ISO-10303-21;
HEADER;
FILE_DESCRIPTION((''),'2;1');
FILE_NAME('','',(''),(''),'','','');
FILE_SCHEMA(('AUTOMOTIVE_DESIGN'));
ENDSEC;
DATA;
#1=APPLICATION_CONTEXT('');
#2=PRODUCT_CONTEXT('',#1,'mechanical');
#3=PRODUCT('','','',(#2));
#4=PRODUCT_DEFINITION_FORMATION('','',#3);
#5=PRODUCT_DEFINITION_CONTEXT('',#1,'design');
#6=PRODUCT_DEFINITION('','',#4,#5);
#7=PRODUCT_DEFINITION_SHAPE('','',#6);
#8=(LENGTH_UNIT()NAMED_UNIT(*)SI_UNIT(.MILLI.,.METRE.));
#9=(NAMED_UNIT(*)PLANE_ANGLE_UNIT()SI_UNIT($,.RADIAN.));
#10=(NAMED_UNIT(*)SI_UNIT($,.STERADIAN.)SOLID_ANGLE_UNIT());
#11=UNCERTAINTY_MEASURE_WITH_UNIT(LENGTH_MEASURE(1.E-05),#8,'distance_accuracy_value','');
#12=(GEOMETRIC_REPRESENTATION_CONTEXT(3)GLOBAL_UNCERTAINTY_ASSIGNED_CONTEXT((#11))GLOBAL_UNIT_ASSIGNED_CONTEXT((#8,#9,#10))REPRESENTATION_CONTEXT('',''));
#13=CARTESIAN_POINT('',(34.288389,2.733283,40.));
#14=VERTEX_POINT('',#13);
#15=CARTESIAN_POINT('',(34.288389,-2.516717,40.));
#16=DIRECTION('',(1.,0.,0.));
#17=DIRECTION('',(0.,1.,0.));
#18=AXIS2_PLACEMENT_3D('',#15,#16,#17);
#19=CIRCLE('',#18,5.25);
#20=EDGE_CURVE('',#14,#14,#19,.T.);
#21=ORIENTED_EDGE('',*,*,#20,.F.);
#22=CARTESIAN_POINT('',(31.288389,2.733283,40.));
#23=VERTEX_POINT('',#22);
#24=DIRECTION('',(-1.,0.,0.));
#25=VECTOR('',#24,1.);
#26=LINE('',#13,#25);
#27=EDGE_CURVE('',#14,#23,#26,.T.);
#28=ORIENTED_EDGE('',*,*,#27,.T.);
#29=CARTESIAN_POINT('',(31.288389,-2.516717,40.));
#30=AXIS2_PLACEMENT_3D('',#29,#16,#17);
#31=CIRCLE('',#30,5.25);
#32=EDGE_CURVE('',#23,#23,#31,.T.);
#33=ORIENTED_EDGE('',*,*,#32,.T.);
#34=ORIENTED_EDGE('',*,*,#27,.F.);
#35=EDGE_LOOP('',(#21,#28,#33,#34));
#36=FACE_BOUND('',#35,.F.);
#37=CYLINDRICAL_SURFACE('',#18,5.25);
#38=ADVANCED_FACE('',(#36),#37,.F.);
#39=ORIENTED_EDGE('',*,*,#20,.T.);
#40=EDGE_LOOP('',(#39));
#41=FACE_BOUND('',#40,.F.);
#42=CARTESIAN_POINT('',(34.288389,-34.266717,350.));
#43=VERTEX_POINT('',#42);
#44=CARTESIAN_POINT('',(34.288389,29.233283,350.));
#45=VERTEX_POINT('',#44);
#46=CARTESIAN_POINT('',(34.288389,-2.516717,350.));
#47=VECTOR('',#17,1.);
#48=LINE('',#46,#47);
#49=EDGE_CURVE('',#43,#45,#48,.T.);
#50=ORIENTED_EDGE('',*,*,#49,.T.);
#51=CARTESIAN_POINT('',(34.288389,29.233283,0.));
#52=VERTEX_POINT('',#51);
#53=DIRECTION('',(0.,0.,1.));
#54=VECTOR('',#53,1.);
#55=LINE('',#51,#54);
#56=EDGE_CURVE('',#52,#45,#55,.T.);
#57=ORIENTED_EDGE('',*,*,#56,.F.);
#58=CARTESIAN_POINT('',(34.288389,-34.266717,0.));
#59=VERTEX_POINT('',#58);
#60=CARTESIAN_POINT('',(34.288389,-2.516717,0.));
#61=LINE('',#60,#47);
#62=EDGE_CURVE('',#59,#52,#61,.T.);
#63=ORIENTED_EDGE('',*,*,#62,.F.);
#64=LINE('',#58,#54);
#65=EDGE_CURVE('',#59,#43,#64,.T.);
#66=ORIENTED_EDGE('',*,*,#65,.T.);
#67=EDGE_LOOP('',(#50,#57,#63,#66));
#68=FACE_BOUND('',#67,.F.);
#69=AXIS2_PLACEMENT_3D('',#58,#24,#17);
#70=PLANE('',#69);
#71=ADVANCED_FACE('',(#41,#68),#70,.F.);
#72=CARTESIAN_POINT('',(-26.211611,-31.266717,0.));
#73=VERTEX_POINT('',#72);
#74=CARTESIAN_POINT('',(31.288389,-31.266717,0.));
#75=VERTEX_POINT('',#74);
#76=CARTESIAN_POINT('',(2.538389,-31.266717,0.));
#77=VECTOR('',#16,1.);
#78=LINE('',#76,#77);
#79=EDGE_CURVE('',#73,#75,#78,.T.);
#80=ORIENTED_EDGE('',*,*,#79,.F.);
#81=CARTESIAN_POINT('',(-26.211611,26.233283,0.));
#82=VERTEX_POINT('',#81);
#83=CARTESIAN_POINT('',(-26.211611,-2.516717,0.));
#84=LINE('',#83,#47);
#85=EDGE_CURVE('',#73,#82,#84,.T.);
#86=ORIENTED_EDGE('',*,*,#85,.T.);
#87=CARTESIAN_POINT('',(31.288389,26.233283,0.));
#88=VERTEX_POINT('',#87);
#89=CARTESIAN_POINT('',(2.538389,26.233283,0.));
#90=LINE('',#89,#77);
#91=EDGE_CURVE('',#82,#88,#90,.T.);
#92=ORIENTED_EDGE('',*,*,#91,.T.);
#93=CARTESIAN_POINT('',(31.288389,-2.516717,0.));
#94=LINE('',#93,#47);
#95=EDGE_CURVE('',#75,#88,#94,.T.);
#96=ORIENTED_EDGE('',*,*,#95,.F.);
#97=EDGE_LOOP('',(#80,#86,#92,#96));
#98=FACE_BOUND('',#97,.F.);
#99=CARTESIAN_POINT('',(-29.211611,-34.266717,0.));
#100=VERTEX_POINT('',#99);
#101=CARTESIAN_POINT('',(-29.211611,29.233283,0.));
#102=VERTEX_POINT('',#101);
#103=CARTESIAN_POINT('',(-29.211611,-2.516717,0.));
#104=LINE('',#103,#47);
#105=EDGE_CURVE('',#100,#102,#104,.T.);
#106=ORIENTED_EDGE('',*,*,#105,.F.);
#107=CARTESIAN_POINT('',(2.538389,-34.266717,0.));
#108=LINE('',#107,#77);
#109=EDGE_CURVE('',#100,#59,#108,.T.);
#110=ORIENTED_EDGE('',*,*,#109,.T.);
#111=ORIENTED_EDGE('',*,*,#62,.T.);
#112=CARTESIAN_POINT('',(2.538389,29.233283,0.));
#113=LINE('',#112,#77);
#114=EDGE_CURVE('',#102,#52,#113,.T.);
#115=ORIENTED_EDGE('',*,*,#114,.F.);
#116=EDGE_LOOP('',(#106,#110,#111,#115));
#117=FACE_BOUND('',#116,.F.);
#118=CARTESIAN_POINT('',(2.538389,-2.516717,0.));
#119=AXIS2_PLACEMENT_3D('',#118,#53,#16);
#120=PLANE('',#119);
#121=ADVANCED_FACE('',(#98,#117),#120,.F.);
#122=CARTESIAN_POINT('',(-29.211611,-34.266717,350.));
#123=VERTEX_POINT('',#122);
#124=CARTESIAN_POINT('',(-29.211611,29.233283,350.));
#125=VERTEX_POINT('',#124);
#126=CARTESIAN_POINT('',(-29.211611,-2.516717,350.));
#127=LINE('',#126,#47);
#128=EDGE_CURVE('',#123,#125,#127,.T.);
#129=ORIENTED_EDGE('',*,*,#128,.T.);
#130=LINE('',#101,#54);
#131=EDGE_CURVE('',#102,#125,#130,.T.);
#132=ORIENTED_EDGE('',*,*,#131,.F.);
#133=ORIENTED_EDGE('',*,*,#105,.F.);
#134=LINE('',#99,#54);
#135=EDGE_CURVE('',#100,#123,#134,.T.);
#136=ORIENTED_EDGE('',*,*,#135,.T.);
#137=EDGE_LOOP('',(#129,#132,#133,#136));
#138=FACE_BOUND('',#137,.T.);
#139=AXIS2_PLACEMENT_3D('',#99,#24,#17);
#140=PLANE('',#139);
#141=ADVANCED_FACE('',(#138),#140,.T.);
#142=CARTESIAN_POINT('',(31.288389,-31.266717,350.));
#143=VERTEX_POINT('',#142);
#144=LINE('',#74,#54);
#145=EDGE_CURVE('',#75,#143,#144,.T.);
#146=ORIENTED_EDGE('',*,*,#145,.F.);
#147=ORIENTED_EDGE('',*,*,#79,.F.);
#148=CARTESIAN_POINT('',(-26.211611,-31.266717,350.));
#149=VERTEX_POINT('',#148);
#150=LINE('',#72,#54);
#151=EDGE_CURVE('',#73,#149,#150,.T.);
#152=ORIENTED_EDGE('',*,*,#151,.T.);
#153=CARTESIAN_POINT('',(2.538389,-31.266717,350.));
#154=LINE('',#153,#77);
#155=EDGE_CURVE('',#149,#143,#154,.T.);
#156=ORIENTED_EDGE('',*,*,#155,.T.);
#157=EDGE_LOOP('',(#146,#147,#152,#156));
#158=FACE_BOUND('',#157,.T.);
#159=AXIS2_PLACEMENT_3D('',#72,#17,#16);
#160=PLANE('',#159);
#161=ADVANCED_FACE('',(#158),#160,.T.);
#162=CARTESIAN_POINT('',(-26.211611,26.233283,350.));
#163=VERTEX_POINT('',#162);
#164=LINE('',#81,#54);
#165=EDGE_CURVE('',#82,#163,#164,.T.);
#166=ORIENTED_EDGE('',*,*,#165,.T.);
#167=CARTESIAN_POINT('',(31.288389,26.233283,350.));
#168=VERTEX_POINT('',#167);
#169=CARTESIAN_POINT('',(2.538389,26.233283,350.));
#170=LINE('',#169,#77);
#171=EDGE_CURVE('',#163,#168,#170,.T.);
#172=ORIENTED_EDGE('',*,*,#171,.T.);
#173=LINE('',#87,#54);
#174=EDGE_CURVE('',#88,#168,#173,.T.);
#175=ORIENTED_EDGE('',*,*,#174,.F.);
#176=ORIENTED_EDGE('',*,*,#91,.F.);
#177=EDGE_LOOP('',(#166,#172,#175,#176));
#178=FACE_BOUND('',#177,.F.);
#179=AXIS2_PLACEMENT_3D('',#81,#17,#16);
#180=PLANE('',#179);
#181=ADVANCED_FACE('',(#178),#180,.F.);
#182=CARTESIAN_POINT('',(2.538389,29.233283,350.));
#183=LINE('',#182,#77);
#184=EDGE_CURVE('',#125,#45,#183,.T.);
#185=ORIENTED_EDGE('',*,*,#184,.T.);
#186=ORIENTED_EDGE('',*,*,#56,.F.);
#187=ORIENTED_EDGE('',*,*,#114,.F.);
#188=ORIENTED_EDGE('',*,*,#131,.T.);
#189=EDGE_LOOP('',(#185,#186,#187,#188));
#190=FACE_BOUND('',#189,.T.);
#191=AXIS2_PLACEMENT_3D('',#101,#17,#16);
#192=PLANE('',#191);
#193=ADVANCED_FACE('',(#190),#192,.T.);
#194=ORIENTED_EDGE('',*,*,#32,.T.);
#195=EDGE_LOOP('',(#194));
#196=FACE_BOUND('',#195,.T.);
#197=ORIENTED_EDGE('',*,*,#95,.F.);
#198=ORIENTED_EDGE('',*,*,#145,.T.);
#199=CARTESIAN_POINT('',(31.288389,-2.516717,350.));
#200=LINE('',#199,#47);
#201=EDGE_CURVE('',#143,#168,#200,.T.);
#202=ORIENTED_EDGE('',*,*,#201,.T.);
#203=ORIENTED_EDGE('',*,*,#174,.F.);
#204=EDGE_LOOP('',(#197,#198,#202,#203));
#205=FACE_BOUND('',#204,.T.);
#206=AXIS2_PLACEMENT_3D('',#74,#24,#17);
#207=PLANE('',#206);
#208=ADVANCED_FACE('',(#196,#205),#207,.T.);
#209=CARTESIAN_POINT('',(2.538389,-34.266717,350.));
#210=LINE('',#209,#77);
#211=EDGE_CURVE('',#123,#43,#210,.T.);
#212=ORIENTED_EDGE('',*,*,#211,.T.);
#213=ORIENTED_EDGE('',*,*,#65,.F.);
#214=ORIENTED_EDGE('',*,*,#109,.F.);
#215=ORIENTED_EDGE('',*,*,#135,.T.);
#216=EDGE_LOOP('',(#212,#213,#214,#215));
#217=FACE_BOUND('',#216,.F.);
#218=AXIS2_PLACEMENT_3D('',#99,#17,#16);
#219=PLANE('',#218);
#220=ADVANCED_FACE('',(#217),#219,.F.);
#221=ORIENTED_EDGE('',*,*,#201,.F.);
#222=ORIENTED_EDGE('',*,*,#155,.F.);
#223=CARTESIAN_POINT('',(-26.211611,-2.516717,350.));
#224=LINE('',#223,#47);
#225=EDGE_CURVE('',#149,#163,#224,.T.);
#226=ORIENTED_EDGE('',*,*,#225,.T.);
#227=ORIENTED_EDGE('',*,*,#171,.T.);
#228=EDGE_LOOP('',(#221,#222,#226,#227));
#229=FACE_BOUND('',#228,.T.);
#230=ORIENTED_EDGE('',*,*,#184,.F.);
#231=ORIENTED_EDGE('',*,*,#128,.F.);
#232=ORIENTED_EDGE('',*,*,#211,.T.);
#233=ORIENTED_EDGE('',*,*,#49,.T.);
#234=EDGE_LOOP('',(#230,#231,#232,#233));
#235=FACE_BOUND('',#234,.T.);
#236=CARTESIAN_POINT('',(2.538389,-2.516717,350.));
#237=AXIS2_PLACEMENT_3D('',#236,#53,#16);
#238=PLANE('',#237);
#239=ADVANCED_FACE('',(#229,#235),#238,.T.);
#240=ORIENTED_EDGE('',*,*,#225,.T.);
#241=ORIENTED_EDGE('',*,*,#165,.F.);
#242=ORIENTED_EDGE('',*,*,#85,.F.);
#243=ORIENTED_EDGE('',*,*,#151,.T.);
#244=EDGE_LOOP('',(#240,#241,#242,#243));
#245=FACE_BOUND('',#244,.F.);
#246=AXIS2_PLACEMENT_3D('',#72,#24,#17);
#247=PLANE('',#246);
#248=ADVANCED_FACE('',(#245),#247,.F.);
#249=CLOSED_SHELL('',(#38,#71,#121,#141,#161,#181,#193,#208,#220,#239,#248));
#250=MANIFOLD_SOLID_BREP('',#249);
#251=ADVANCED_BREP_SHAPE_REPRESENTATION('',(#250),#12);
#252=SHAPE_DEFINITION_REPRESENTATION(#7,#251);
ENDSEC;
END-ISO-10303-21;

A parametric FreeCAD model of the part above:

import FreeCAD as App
import Part
import Sketcher
from FreeCAD import Vector
Q = App.Units.Quantity

doc = App.newDocument("Part")
body = doc.addObject("PartDesign::Body", "Body")

# Sketch on XY plane
sketch1 = doc.addObject("Sketcher::SketchObject", "Sketch")
body.addObject(sketch1)
sketch1.AttachmentSupport = (doc.XY_Plane, [""])
sketch1.MapMode = "FlatFace"
sketch1.addGeometry([
    Part.LineSegment(Vector(-29, 29, 0), Vector(-29, -34, 0)),  # 0
    Part.LineSegment(Vector(-29, -34, 0), Vector(34, -34, 0)),  # 1
    Part.LineSegment(Vector(34, -34, 0), Vector(34, 29, 0)),  # 2
    Part.LineSegment(Vector(34, 29, 0), Vector(-29, 29, 0)),  # 3
    Part.LineSegment(Vector(31, -31, 0), Vector(-26, -31, 0)),  # 4
    Part.LineSegment(Vector(-26, -31, 0), Vector(-26, 26, 0)),  # 5
    Part.LineSegment(Vector(-26, 26, 0), Vector(31, 26, 0)),  # 6
    Part.LineSegment(Vector(31, 26, 0), Vector(31, -31, 0)),  # 7
], False)
sketch1.addConstraint([
    Sketcher.Constraint("Coincident", 0, 2, 1, 1),
    Sketcher.Constraint("Coincident", 1, 2, 2, 1),
    Sketcher.Constraint("Coincident", 2, 2, 3, 1),
    Sketcher.Constraint("Coincident", 3, 2, 0, 1),
    Sketcher.Constraint("Coincident", 4, 2, 5, 1),
    Sketcher.Constraint("Coincident", 5, 2, 6, 1),
    Sketcher.Constraint("Coincident", 6, 2, 7, 1),
    Sketcher.Constraint("Coincident", 7, 2, 4, 1),
    Sketcher.Constraint("Vertical", 0),
    Sketcher.Constraint("Horizontal", 1),
    Sketcher.Constraint("Vertical", 2),
    Sketcher.Constraint("Horizontal", 3),
    Sketcher.Constraint("Horizontal", 4),
    Sketcher.Constraint("Vertical", 5),
    Sketcher.Constraint("Horizontal", 6),
    Sketcher.Constraint("Vertical", 7),
    Sketcher.Constraint("Equal", 3, 0),
    Sketcher.Constraint("Equal", 6, 5),
    Sketcher.Constraint("DistanceX", 1, 1, 1, 2, Q("63.5 mm")),
    Sketcher.Constraint("DistanceX", 4, 2, 4, 1, Q("57.5 mm")),
    Sketcher.Constraint("DistanceX", 0, 2, 4, 2, Q("3 mm")),
    Sketcher.Constraint("DistanceY", 0, 2, 4, 2, Q("3 mm")),
    Sketcher.Constraint("DistanceX", 0, 2, -1, 1, Q("29.211611 mm")),
    Sketcher.Constraint("DistanceY", 0, 2, -1, 1, Q("34.266717 mm")),
])
pad1 = doc.addObject("PartDesign::Pad", "Pad")
body.addObject(pad1)
pad1.Profile = sketch1
pad1.Length = 350

# Sketch on YZ plane
sketch2 = doc.addObject("Sketcher::SketchObject", "Sketch001")
body.addObject(sketch2)
sketch2.AttachmentSupport = (doc.YZ_Plane, [""])
sketch2.MapMode = "FlatFace"
sketch2.AttachmentOffset = App.Placement(Vector(0, 0, 34.288389), App.Rotation())
sketch2.addGeometry(Part.Circle(Vector(-3, 40, 0), Vector(0, 0, 1), 5), False)
sketch2.addConstraint([
    Sketcher.Constraint("Diameter", 0, Q("10.5 mm")),
    Sketcher.Constraint("DistanceY", -1, 1, 0, 3, Q("40 mm")),
    Sketcher.Constraint("DistanceX", 0, 3, -1, 1, Q("2.516717 mm")),
])
pocket1 = doc.addObject("PartDesign::Pocket", "Pocket")
body.addObject(pocket1)
pocket1.Profile = sketch2
pocket1.Length = 10

doc.recompute()
